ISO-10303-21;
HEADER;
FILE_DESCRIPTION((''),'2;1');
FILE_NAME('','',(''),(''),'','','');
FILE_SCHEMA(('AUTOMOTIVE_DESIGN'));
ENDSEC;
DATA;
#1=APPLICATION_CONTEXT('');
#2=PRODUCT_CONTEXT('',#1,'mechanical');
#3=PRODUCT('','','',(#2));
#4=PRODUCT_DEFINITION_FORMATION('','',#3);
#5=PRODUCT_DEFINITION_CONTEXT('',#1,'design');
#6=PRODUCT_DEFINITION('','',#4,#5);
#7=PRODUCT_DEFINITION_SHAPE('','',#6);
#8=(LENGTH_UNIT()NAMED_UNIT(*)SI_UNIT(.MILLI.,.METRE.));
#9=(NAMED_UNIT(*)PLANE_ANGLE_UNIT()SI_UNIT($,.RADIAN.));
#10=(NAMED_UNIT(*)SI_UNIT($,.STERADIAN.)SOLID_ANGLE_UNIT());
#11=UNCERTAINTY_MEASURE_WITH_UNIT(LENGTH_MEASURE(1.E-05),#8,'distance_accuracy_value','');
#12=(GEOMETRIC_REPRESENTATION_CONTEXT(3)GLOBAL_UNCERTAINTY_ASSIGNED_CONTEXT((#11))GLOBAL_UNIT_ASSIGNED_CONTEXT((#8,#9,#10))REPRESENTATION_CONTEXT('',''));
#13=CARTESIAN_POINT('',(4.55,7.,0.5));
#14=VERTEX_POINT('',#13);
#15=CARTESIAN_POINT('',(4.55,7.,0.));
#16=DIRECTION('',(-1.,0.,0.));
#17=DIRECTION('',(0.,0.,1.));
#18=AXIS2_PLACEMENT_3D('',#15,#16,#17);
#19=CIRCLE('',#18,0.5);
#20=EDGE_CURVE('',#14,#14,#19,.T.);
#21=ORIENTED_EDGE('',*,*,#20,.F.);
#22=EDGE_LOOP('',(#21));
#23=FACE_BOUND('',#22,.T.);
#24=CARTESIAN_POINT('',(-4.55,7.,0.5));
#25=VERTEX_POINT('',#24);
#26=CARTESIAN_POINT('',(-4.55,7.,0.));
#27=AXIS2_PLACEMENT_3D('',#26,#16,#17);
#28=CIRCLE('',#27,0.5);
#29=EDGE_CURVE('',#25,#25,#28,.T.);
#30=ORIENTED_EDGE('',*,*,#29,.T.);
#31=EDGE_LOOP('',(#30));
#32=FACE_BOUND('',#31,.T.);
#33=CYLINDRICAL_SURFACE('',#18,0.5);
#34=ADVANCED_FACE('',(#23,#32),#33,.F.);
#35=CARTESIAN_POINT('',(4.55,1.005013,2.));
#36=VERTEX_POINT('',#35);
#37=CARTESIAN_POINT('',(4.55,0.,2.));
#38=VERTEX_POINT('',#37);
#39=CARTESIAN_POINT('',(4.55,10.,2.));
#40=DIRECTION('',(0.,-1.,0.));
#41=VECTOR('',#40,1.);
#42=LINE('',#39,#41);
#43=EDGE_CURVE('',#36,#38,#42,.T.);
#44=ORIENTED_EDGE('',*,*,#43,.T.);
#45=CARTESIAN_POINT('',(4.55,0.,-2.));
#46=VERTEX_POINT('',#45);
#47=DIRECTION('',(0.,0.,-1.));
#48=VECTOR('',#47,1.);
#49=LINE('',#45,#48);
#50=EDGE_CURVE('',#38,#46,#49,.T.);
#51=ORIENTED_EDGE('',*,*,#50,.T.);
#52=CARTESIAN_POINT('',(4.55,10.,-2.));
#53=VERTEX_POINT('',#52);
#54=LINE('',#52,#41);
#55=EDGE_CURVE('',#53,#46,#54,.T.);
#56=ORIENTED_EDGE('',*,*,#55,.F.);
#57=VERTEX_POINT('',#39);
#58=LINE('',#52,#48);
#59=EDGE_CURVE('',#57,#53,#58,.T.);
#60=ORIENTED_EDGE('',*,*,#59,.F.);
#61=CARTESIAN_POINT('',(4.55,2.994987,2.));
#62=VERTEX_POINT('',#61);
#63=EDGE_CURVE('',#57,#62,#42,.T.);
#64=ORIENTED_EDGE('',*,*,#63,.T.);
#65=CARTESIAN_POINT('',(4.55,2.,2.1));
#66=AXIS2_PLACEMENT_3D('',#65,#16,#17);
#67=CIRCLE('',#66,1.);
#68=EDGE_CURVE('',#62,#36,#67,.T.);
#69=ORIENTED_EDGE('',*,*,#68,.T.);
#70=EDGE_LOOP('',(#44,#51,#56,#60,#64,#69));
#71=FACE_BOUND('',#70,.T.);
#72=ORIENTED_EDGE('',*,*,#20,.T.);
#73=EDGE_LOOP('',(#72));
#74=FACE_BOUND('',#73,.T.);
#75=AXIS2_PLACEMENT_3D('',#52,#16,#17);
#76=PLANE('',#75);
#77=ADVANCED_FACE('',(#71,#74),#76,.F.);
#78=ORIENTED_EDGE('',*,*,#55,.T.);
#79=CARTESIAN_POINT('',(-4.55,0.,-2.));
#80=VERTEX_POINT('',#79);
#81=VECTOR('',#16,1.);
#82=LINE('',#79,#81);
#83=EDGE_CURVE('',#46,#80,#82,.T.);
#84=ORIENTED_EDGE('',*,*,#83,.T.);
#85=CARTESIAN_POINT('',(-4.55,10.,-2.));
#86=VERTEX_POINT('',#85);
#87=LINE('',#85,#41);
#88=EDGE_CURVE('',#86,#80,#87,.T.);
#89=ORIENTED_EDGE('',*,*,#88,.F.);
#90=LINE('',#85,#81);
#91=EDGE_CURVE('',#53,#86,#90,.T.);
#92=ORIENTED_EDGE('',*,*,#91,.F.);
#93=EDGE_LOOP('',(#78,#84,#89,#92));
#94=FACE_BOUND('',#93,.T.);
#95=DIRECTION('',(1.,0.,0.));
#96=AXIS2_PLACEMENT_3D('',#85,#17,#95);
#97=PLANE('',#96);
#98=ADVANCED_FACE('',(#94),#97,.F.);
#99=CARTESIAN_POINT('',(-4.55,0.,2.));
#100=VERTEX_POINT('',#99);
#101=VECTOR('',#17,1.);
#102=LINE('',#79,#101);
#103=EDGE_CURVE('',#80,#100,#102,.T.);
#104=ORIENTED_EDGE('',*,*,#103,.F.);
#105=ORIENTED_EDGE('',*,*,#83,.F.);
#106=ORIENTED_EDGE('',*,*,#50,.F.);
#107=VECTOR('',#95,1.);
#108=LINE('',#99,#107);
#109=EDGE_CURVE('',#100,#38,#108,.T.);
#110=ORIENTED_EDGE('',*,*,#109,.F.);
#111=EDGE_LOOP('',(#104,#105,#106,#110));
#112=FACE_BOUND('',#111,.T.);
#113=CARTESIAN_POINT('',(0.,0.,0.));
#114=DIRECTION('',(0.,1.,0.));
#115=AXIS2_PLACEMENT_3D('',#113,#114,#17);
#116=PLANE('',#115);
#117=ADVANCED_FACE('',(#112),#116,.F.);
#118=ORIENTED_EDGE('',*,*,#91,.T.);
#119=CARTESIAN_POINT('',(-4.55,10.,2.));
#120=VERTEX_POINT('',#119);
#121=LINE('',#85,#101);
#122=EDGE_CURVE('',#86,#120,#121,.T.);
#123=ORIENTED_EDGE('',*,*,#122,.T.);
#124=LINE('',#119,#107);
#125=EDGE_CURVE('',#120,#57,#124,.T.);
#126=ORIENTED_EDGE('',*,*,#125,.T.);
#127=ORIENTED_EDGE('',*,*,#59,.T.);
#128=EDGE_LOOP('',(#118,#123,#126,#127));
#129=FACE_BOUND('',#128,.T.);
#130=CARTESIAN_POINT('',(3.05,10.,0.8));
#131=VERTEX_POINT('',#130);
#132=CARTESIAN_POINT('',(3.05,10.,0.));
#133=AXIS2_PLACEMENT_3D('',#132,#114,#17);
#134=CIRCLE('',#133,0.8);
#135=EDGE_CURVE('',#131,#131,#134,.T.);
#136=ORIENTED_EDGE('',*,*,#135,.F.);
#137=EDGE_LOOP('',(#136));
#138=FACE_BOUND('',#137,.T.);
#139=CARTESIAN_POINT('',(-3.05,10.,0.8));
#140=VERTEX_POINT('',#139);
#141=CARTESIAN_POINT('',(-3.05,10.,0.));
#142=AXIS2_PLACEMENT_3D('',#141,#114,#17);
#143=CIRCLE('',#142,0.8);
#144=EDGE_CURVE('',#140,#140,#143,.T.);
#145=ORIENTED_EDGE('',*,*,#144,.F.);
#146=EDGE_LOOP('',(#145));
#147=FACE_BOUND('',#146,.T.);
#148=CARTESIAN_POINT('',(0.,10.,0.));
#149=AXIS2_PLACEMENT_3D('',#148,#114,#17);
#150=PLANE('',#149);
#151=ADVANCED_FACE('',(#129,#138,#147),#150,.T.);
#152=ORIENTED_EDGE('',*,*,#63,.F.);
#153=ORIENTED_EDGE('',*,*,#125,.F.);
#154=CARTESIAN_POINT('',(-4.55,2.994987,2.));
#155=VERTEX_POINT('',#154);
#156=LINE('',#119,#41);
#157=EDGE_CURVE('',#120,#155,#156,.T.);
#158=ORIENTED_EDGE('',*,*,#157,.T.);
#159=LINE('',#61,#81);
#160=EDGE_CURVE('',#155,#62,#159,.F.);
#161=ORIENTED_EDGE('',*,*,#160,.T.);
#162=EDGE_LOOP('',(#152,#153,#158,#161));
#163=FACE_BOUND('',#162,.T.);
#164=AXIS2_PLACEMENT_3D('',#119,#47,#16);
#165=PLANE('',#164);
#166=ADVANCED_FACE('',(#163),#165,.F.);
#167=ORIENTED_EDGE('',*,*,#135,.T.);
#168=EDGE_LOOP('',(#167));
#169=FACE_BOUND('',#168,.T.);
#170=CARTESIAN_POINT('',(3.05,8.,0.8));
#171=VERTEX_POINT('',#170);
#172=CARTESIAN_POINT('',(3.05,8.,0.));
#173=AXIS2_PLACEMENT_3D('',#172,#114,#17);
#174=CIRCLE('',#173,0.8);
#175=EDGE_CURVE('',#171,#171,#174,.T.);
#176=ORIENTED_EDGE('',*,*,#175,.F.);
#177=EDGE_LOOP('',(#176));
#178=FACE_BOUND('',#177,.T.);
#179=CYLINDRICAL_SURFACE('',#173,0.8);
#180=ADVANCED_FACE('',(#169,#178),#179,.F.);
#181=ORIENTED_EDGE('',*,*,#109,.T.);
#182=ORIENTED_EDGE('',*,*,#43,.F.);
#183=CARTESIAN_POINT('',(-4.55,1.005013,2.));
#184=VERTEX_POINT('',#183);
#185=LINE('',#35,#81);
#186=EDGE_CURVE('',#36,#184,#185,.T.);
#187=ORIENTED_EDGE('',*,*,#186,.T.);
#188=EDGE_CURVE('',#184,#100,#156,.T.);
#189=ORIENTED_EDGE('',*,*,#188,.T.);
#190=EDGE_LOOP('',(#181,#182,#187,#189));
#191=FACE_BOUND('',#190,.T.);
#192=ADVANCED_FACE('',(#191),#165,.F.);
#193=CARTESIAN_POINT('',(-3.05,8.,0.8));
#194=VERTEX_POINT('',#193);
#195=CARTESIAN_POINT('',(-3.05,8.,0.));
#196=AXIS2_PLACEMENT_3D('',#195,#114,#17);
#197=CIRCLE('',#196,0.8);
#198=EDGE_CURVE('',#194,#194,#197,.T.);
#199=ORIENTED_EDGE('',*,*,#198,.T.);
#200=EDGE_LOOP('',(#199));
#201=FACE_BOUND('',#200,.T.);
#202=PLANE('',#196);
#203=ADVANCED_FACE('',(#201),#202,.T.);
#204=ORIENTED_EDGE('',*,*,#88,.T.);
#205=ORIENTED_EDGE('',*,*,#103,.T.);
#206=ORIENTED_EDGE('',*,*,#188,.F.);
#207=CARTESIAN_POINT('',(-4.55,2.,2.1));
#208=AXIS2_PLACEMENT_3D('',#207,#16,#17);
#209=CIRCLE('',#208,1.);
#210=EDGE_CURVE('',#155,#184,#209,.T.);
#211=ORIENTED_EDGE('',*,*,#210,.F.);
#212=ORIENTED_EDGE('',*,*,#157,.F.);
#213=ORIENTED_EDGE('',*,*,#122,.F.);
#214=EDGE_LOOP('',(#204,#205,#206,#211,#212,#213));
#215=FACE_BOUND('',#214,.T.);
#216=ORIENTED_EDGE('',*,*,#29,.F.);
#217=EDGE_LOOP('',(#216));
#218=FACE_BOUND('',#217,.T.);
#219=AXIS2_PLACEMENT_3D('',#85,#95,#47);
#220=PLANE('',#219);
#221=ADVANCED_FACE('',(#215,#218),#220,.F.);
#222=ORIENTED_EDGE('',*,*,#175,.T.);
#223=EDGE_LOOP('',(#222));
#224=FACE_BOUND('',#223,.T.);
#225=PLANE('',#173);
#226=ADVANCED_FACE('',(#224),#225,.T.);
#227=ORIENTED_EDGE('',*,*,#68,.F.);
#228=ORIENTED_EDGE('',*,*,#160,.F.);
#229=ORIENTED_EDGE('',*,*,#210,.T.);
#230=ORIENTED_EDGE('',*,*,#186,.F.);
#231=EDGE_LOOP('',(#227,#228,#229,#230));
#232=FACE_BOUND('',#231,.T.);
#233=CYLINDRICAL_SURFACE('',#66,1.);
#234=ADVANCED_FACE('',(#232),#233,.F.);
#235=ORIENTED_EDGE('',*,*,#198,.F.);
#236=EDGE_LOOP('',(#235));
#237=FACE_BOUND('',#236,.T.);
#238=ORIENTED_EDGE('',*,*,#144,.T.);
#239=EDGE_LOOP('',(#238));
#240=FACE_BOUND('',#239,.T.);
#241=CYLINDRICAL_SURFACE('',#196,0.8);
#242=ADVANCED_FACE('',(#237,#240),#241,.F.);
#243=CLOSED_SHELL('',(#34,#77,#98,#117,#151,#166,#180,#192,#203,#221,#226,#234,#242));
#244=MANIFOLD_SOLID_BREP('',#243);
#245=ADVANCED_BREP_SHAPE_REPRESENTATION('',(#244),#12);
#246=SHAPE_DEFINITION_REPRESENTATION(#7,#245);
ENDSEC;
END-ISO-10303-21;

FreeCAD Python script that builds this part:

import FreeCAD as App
import Part
import Sketcher

doc = App.newDocument("Part")
body = doc.addObject("PartDesign::Body", "Body")

# Sketch on XZ plane
sketch1 = body.newObject("Sketcher::SketchObject", "Sketch")
sketch1.AttachmentSupport = (doc.getObject("XZ_Plane"), [""])
sketch1.MapMode = "FlatFace"
sketch1.addGeometry(Part.LineSegment(App.Vector(-4.55, -2, 0), App.Vector(-4.55, 2, 0)), False)
sketch1.addGeometry(Part.LineSegment(App.Vector(-4.55, 2, 0), App.Vector(4.55, 2, 0)), False)
sketch1.addGeometry(Part.LineSegment(App.Vector(4.55, 2, 0), App.Vector(4.55, -2, 0)), False)
sketch1.addGeometry(Part.LineSegment(App.Vector(4.55, -2, 0), App.Vector(-4.55, -2, 0)), False)
sketch1.addConstraint(Sketcher.Constraint("Coincident", 0, 2, 1, 1))
sketch1.addConstraint(Sketcher.Constraint("Coincident", 1, 2, 2, 1))
sketch1.addConstraint(Sketcher.Constraint("Coincident", 2, 2, 3, 1))
sketch1.addConstraint(Sketcher.Constraint("Coincident", 3, 2, 0, 1))
sketch1.addConstraint(Sketcher.Constraint("Vertical", 0))
sketch1.addConstraint(Sketcher.Constraint("Horizontal", 1))
sketch1.addConstraint(Sketcher.Constraint("Vertical", 2))
sketch1.addConstraint(Sketcher.Constraint("Horizontal", 3))
sketch1.addConstraint(Sketcher.Constraint("Symmetric", 0, 2, 2, 2, -1, 1))
sketch1.addConstraint(Sketcher.Constraint("DistanceY", 0, 1, 0, 2, 4.0))
sketch1.addConstraint(Sketcher.Constraint("DistanceX", 1, 1, 1, 2, 9.1))
pad1 = body.newObject("PartDesign::Pad", "Pad")
pad1.Profile = sketch1
pad1.Length = 10
pad1.Reversed = True

# Sketch on YZ plane
sketch2 = body.newObject("Sketcher::SketchObject", "Sketch001")
sketch2.AttachmentSupport = (doc.getObject("YZ_Plane"), [""])
sketch2.MapMode = "FlatFace"
sketch2.AttachmentOffset = App.Placement(App.Vector(0, 0, -4.55), App.Rotation())
sketch2.addGeometry(Part.Circle(App.Vector(7, 0, 0), App.Vector(0, 0, 1), 0.5), False)
sketch2.addGeometry(Part.Circle(App.Vector(2, 2.1, 0), App.Vector(0, 0, 1), 1), False)
sketch2.addConstraint(Sketcher.Constraint("PointOnObject", 0, 3, -1))
sketch2.addConstraint(Sketcher.Constraint("Diameter", 0, 1.0))
sketch2.addConstraint(Sketcher.Constraint("Diameter", 1, 2.0))
sketch2.addConstraint(Sketcher.Constraint("DistanceX", -1, 1, 0, 3, 7.0))
sketch2.addConstraint(Sketcher.Constraint("DistanceX", -1, 1, 1, 3, 2.0))
sketch2.addConstraint(Sketcher.Constraint("DistanceY", -1, 1, 1, 3, 2.1))
pocket1 = body.newObject("PartDesign::Pocket", "Pocket")
pocket1.Profile = sketch2
pocket1.Type = "ThroughAll"
pocket1.Reversed = True

# Sketch on XZ plane
sketch3 = body.newObject("Sketcher::SketchObject", "Sketch002")
sketch3.AttachmentSupport = (doc.getObject("XZ_Plane"), [""])
sketch3.MapMode = "FlatFace"
sketch3.AttachmentOffset = App.Placement(App.Vector(0, 0, -10), App.Rotation())
sketch3.addGeometry(Part.Circle(App.Vector(3.05, 0, 0), App.Vector(0, 0, 1), 0.8), False)
sketch3.addGeometry(Part.Circle(App.Vector(-3.05, 0, 0), App.Vector(0, 0, 1), 0.8), False)
sketch3.addConstraint(Sketcher.Constraint("Equal", 0, 1))
sketch3.addConstraint(Sketcher.Constraint("Symmetric", 0, 3, 1, 3, -1, 1))
sketch3.addConstraint(Sketcher.Constraint("PointOnObject", 0, 3, -1))
sketch3.addConstraint(Sketcher.Constraint("Diameter", 0, 1.6))
sketch3.addConstraint(Sketcher.Constraint("DistanceX", 1, 3, 0, 3, 6.1))
pocket2 = body.newObject("PartDesign::Pocket", "Pocket001")
pocket2.Profile = sketch3
pocket2.Length = 2
pocket2.Reversed = True

doc.recompute()
